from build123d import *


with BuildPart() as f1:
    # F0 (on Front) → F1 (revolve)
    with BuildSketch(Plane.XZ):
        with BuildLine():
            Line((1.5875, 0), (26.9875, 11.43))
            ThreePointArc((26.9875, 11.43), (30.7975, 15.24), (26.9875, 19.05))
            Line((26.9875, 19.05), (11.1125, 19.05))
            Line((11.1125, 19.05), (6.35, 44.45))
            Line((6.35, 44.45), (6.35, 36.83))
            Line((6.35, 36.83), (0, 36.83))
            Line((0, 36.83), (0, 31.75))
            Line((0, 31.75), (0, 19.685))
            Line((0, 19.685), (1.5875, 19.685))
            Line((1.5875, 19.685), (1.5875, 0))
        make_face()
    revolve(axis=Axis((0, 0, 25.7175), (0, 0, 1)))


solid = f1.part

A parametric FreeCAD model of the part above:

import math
import FreeCAD as App
import Part
import Sketcher
Q = App.Units.Quantity

doc = App.newDocument("Part")
body = doc.addObject("PartDesign::Body", "Body")

# Sketch on XZ plane
sketch1 = body.newObject("Sketcher::SketchObject", "Sketch")
sketch1.AttachmentSupport = (doc.getObject("XZ_Plane"), [""])
sketch1.MapMode = "FlatFace"
sketch1.addGeometry(Part.LineSegment(App.Vector(1.6, 0, 0), App.Vector(27, 11.4, 0)), False)
sketch1.addGeometry(Part.ArcOfCircle(Part.Circle(App.Vector(27, 15.2, 0), App.Vector(0, 0, 1), 3.8), math.radians(-90), math.radians(90)), False)
sketch1.addGeometry(Part.LineSegment(App.Vector(27, 19.1, 0), App.Vector(11.1, 19.1, 0)), False)
sketch1.addGeometry(Part.LineSegment(App.Vector(11.1, 19.1, 0), App.Vector(6.3, 44.5, 0)), False)
sketch1.addGeometry(Part.LineSegment(App.Vector(6.3, 44.5, 0), App.Vector(6.3, 36.8, 0)), False)
sketch1.addGeometry(Part.LineSegment(App.Vector(6.3, 36.8, 0), App.Vector(0, 36.8, 0)), False)
sketch1.addGeometry(Part.LineSegment(App.Vector(0, 36.8, 0), App.Vector(0, 19.7, 0)), False)
sketch1.addGeometry(Part.LineSegment(App.Vector(0, 19.7, 0), App.Vector(1.6, 19.7, 0)), False)
sketch1.addGeometry(Part.LineSegment(App.Vector(1.6, 19.7, 0), App.Vector(1.6, 0, 0)), False)
sketch1.addConstraint(Sketcher.Constraint("Coincident", 0, 2, 1, 1))
sketch1.addConstraint(Sketcher.Constraint("Tangent", 1, 2, 2, 1))
sketch1.addConstraint(Sketcher.Constraint("Coincident", 2, 2, 3, 1))
sketch1.addConstraint(Sketcher.Constraint("Coincident", 3, 2, 4, 1))
sketch1.addConstraint(Sketcher.Constraint("Coincident", 4, 2, 5, 1))
sketch1.addConstraint(Sketcher.Constraint("Coincident", 5, 2, 6, 1))
sketch1.addConstraint(Sketcher.Constraint("Coincident", 6, 2, 7, 1))
sketch1.addConstraint(Sketcher.Constraint("Coincident", 7, 2, 8, 1))
sketch1.addConstraint(Sketcher.Constraint("Coincident", 8, 2, 0, 1))
sketch1.addConstraint(Sketcher.Constraint("Horizontal", 2))
sketch1.addConstraint(Sketcher.Constraint("Vertical", 4))
sketch1.addConstraint(Sketcher.Constraint("Horizontal", 5))
sketch1.addConstraint(Sketcher.Constraint("Vertical", 6))
sketch1.addConstraint(Sketcher.Constraint("Horizontal", 7))
sketch1.addConstraint(Sketcher.Constraint("Vertical", 8))
sketch1.addConstraint(Sketcher.Constraint("PointOnObject", 5, 2, -2))
sketch1.addConstraint(Sketcher.Constraint("PointOnObject", 8, 2, -1))
sketch1.addConstraint(Sketcher.Constraint("Vertical", 1, 3, 0, 2))
sketch1.addConstraint(Sketcher.Constraint("Radius", 1, Q("0.15 in")))
sketch1.addConstraint(Sketcher.Constraint("DistanceY", 4, 2, 4, 1, Q("0.3 in")))
sketch1.addConstraint(Sketcher.Constraint("DistanceY", 2, 2, 3, 2, Q("1 in")))
sketch1.addConstraint(Sketcher.Constraint("DistanceX", 8, 2, 0, 2, Q("1 in")))
sketch1.addConstraint(Sketcher.Constraint("DistanceX", 5, 2, 5, 1, Q("0.25 in")))
sketch1.addConstraint(Sketcher.Constraint("DistanceY", -1, 1, 1, 3, Q("0.6 in")))
sketch1.addConstraint(Sketcher.Constraint("DistanceX", 2, 2, 2, 1, Q("0.625 in")))
sketch1.addConstraint(Sketcher.Constraint("DistanceX", 7, 1, 7, 2, Q("0.0625 in")))
sketch1.addConstraint(Sketcher.Constraint("DistanceY", 6, 2, 6, 1, Q("0.675 in")))
revolution = body.newObject("PartDesign::Revolution", "Revolution")
revolution.Profile = sketch1
revolution.ReferenceAxis = (sketch1, ["V_Axis"])
revolution.Angle = 360

doc.recompute()
